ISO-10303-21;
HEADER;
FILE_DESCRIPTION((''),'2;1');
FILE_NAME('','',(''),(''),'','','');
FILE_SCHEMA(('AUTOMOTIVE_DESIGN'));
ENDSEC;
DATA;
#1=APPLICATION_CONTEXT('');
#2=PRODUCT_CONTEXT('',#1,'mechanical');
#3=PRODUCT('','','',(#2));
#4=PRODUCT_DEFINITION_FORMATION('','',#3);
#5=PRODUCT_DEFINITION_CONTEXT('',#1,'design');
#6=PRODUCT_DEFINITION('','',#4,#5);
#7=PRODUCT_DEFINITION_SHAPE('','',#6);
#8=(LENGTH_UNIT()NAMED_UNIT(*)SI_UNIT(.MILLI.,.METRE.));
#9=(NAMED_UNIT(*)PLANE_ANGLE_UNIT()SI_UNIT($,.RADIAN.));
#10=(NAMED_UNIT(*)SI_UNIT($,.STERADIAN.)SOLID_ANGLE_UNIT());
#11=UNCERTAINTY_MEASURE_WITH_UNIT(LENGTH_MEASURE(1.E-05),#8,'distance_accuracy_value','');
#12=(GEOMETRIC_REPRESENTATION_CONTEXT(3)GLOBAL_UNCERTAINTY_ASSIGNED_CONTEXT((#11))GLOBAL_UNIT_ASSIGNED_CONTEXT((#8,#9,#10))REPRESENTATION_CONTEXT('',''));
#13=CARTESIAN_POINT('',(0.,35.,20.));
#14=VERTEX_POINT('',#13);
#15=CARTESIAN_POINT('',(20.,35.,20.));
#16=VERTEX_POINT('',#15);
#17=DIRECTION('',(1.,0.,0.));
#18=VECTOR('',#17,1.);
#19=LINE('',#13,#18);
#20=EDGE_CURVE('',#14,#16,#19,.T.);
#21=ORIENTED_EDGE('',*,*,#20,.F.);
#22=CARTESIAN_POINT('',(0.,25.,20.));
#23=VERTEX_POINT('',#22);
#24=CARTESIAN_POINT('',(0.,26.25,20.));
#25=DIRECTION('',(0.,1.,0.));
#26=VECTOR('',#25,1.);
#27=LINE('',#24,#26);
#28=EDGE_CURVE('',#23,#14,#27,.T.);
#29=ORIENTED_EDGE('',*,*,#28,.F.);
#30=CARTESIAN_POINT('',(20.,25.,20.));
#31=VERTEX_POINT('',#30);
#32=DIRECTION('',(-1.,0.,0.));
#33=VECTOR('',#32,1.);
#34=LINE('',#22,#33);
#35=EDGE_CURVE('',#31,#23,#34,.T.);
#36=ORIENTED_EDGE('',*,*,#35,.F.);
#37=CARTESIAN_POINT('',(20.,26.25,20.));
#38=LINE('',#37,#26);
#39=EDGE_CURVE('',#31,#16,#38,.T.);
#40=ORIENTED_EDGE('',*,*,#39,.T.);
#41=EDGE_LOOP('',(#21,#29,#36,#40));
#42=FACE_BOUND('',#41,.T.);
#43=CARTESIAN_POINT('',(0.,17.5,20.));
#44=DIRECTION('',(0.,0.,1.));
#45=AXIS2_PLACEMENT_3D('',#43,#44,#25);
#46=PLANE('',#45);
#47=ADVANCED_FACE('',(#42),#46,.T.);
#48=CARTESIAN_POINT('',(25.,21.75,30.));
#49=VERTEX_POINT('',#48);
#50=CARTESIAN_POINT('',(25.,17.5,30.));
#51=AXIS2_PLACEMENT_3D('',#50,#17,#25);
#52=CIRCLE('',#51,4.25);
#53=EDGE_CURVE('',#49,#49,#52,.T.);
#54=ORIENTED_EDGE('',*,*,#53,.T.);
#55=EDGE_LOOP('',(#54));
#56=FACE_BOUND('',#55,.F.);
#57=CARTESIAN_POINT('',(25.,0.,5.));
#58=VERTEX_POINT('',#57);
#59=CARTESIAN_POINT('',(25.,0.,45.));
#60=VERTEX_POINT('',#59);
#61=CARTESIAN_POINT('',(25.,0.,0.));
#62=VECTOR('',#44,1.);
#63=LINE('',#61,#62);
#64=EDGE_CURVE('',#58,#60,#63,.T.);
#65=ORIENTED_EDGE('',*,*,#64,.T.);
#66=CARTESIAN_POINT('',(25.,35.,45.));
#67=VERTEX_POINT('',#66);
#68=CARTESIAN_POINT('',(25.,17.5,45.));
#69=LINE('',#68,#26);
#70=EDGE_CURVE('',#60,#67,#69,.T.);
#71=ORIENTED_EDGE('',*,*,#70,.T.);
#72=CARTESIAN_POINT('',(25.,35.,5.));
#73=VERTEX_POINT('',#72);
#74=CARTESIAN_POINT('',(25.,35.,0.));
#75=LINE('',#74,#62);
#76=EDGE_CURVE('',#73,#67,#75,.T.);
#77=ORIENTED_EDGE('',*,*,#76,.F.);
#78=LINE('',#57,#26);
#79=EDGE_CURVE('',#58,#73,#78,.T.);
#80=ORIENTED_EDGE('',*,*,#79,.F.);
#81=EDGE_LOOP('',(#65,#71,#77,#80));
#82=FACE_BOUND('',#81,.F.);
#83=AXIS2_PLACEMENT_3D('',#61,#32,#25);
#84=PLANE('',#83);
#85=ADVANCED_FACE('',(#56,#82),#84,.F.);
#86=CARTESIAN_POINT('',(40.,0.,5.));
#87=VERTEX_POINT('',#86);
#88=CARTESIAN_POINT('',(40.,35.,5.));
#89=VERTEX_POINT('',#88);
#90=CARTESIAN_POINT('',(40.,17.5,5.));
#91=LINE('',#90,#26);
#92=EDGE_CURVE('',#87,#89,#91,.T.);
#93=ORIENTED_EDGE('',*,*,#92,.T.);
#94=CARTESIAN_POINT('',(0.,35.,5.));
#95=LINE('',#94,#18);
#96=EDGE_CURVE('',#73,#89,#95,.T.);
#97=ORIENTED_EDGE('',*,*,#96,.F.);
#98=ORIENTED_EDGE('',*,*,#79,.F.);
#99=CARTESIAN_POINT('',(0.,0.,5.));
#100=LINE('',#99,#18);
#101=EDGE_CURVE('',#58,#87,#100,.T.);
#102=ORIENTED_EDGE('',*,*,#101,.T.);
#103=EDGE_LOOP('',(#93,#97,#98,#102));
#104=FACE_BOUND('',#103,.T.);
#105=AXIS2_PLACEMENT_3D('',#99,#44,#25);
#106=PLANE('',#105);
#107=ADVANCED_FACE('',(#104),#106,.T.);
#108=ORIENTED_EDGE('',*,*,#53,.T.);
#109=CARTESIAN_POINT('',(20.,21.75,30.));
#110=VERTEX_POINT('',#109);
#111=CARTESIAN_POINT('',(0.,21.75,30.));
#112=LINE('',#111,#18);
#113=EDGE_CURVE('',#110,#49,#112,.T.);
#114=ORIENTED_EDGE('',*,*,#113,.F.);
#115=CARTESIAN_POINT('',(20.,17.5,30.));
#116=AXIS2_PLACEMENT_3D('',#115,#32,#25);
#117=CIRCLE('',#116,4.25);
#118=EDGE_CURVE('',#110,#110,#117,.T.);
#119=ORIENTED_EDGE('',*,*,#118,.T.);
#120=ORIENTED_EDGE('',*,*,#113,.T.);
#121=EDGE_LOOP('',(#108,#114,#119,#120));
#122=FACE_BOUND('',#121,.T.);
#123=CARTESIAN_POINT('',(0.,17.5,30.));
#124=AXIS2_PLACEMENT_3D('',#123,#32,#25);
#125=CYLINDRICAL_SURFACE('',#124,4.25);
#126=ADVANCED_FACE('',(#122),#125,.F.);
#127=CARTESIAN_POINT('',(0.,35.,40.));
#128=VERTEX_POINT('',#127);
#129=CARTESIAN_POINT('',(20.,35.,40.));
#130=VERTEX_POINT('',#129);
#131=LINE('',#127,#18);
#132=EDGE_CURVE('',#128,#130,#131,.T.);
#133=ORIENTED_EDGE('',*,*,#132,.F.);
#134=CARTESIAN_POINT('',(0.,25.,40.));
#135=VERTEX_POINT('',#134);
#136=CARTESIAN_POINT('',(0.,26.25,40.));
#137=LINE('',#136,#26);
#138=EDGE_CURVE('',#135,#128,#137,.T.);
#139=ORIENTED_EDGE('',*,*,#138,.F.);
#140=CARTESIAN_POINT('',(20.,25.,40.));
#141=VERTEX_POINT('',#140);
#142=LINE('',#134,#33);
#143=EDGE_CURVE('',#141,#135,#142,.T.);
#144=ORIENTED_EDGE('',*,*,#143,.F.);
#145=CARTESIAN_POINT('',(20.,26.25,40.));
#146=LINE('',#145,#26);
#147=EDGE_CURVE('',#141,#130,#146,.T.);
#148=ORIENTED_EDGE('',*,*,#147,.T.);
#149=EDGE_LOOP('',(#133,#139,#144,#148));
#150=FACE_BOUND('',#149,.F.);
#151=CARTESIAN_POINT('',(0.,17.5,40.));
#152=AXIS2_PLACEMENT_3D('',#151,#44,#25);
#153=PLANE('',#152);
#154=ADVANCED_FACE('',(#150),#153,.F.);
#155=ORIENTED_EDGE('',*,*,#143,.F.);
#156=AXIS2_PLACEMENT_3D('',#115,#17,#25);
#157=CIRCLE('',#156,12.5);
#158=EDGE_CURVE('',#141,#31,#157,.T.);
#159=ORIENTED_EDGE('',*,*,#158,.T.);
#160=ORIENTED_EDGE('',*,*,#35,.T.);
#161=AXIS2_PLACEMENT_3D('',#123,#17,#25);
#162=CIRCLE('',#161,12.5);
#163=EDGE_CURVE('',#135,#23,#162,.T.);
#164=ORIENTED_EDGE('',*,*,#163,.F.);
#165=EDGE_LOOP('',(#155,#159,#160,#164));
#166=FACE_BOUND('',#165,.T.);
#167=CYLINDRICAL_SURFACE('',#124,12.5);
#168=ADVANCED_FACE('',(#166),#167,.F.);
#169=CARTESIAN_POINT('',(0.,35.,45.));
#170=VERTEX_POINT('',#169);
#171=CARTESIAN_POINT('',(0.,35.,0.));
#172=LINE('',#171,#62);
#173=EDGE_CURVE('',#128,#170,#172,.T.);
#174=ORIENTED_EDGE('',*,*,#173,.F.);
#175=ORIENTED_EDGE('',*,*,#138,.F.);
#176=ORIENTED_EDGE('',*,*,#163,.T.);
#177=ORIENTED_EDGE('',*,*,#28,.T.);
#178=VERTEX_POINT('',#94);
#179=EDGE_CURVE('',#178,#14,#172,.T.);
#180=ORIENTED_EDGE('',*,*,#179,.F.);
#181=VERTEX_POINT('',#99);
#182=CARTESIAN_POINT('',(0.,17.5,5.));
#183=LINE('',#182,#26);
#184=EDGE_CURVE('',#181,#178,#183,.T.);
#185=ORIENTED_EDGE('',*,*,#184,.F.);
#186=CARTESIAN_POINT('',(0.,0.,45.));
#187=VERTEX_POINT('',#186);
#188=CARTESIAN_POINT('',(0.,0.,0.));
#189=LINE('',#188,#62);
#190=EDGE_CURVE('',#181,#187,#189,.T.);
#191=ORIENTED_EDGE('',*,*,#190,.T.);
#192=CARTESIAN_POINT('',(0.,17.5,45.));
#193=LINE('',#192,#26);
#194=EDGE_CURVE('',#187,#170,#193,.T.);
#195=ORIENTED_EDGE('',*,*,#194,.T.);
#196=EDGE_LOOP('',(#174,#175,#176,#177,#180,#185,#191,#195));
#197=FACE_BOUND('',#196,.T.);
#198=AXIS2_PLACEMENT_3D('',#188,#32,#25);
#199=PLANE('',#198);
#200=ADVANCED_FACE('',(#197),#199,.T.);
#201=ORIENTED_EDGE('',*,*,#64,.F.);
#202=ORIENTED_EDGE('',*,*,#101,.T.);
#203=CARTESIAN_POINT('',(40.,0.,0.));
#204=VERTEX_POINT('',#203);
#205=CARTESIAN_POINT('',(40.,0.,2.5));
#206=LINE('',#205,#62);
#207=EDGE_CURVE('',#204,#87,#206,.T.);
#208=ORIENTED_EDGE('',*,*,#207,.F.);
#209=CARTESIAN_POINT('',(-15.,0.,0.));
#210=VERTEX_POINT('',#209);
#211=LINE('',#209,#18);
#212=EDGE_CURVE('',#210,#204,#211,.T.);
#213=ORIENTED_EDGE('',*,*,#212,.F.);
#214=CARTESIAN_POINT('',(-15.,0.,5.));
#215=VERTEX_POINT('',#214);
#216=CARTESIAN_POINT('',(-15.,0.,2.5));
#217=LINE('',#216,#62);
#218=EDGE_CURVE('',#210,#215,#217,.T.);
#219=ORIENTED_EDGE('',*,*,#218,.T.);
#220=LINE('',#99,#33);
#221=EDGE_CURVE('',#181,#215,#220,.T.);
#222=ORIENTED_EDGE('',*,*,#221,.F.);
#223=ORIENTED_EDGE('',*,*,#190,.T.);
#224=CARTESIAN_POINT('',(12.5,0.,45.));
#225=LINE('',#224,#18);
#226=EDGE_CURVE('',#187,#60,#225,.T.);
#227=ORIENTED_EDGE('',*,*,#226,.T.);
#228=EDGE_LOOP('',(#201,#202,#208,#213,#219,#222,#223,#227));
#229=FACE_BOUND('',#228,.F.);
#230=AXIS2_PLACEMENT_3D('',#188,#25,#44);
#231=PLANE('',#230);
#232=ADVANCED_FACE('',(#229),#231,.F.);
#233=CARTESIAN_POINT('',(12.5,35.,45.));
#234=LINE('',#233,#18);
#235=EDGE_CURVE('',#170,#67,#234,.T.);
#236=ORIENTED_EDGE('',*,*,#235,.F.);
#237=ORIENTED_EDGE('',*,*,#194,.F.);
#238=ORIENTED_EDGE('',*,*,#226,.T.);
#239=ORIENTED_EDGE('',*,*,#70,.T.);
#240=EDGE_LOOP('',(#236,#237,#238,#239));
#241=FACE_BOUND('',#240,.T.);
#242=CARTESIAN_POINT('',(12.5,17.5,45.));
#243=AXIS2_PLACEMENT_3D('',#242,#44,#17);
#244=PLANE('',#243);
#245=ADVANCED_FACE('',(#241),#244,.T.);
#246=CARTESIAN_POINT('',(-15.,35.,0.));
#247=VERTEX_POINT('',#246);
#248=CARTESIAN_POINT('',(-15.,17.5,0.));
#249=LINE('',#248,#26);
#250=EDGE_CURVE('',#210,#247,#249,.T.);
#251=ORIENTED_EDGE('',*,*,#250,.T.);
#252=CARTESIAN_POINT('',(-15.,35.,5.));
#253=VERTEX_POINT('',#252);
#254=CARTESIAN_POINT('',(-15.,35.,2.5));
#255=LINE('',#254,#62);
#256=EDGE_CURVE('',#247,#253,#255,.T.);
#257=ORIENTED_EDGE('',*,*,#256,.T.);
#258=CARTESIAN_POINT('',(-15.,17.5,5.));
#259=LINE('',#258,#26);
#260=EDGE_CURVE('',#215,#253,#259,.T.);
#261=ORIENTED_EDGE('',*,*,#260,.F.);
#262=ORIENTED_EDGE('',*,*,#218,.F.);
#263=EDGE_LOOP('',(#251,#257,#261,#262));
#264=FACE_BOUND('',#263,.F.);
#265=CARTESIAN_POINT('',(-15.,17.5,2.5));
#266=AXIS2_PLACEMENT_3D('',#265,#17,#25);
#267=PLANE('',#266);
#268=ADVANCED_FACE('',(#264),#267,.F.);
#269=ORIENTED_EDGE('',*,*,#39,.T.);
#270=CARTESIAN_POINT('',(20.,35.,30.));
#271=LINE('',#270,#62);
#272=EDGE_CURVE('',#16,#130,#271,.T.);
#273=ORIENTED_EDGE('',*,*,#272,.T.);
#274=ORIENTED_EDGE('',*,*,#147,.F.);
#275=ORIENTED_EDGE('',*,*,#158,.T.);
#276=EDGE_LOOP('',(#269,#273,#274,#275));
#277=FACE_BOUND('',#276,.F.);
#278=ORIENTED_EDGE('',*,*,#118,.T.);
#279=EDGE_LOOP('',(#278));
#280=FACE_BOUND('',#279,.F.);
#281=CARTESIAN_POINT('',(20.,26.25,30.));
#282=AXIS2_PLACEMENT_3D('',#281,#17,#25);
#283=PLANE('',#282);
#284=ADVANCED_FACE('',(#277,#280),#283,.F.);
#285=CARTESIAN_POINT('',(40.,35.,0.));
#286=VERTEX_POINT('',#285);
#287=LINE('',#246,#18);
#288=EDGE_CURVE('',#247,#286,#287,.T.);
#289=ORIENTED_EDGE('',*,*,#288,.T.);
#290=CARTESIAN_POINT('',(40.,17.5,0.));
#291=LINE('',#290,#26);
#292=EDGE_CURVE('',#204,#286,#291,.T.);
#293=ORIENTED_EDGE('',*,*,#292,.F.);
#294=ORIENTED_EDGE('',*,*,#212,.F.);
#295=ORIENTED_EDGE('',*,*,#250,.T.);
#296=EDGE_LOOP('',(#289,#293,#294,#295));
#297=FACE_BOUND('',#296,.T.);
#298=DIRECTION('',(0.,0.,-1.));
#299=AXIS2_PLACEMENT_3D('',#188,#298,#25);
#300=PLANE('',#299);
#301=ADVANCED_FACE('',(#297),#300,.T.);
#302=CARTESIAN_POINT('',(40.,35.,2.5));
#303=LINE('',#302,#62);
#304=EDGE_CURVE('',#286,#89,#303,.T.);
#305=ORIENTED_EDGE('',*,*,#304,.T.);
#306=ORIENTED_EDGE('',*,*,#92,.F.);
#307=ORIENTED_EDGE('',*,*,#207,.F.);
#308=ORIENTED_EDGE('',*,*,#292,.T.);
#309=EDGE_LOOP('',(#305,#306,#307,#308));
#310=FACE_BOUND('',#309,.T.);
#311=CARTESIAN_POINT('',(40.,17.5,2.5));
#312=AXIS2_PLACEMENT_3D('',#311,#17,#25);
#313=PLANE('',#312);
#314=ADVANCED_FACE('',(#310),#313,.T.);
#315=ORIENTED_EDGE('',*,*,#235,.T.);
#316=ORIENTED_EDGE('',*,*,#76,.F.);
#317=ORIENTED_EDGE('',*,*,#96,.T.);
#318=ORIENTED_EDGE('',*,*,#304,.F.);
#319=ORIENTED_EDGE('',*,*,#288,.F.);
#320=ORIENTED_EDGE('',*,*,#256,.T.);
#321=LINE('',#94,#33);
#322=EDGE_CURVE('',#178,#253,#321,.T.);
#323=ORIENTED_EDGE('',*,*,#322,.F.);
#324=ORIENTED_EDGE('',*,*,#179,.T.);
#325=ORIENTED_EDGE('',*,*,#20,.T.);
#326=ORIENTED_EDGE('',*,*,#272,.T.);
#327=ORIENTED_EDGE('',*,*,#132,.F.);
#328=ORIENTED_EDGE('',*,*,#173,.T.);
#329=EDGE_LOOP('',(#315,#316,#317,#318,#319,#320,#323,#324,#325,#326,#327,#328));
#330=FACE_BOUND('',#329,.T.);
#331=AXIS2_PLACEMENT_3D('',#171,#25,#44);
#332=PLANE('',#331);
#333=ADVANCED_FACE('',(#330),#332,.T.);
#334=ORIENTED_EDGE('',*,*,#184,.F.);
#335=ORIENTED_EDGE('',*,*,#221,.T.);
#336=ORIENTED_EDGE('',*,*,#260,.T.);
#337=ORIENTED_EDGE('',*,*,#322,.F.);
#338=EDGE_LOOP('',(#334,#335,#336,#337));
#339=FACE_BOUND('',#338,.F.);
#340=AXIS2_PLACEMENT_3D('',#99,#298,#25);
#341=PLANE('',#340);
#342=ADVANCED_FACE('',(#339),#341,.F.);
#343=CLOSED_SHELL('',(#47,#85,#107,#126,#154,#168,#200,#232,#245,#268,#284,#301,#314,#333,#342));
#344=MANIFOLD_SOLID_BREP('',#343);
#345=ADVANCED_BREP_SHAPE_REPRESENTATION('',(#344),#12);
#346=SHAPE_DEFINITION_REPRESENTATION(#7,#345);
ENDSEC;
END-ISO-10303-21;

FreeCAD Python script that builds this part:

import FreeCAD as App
import Part
import Sketcher

V = App.Vector


def add_polygon(sketch, points):
    """Adds a closed chain of lines whose ends are joined by coincident constraints."""
    first, n = sketch.GeometryCount, len(points)
    for a, b in zip(points, points[1:] + points[:1]):
        sketch.addGeometry(Part.LineSegment(App.Vector(*a, 0), App.Vector(*b, 0)), False)
    for i in range(n):
        sketch.addConstraint(Sketcher.Constraint("Coincident", first + i, 2, first + (i + 1) % n, 1))

doc = App.newDocument("Part")
body = doc.addObject("PartDesign::Body", "Body")

# Sketch on XY plane
sketch1 = body.newObject("Sketcher::SketchObject", "Sketch")
sketch1.AttachmentSupport = (doc.getObject("XY_Plane"), [""])
sketch1.MapMode = "FlatFace"
add_polygon(sketch1, [(0, 35), (0, 0), (25, 0), (25, 35)])  # lines 0-3
sketch1.addConstraint([
    Sketcher.Constraint("Vertical", 0),
    Sketcher.Constraint("Horizontal", 1),
    Sketcher.Constraint("Vertical", 2),
    Sketcher.Constraint("Horizontal", 3),
    Sketcher.Constraint("Coincident", 0, 2, -1, 1),
    Sketcher.Constraint("DistanceX", 1, 1, 1, 2, 25.0),
    Sketcher.Constraint("DistanceY", 0, 2, 0, 1, 35.0),
])
pad1 = body.newObject("PartDesign::Pad", "Pad")
pad1.Profile = sketch1
pad1.Length = 45

# Sketch on YZ plane
sketch2 = body.newObject("Sketcher::SketchObject", "Sketch001")
sketch2.AttachmentSupport = (doc.getObject("YZ_Plane"), [""])
sketch2.MapMode = "FlatFace"
sketch2.addGeometry(Part.Circle(V(17.5, 30, 0), V(0, 0, 1), 12.5), False)
sketch2.addConstraint([
    Sketcher.Constraint("Diameter", 0, 25.0),
    Sketcher.Constraint("DistanceY", -1, 1, 0, 3, 30.0),
    Sketcher.Constraint("DistanceX", -1, 1, 0, 3, 17.5),
])
pocket1 = body.newObject("PartDesign::Pocket", "Pocket")
pocket1.Profile = sketch2
pocket1.Length = 20
pocket1.Reversed = True

# Sketch on YZ plane
sketch3 = body.newObject("Sketcher::SketchObject", "Sketch002")
sketch3.AttachmentSupport = (doc.getObject("YZ_Plane"), [""])
sketch3.MapMode = "FlatFace"
sketch3.addGeometry(Part.Circle(V(17.5, 30, 0), V(0, 0, 1), 4.25), False)
sketch3.addConstraint([
    Sketcher.Constraint("Diameter", 0, 8.5),
    Sketcher.Constraint("DistanceY", -1, 1, 0, 3, 30.0),
    Sketcher.Constraint("DistanceX", -1, 1, 0, 3, 17.5),
])
pocket2 = body.newObject("PartDesign::Pocket", "Pocket001")
pocket2.Profile = sketch3
pocket2.Length = 25
pocket2.Reversed = True

# Sketch on YZ plane
sketch4 = body.newObject("Sketcher::SketchObject", "Sketch003")
sketch4.AttachmentSupport = (doc.getObject("YZ_Plane"), [""])
sketch4.MapMode = "FlatFace"
add_polygon(sketch4, [(0, 5), (0, 0), (35, 0), (35, 5)])  # lines 0-3
sketch4.addConstraint([
    Sketcher.Constraint("Vertical", 0),
    Sketcher.Constraint("Horizontal", 1),
    Sketcher.Constraint("Vertical", 2),
    Sketcher.Constraint("Horizontal", 3),
    Sketcher.Constraint("Coincident", 0, 2, -1, 1),
    Sketcher.Constraint("DistanceX", 1, 1, 1, 2, 35.0),
    Sketcher.Constraint("DistanceY", 0, 2, 0, 1, 5.0),
])
pad2 = body.newObject("PartDesign::Pad", "Pad001")
pad2.Profile = sketch4
pad2.Length = 15
pad2.Reversed = True

# Sketch on YZ plane
sketch5 = body.newObject("Sketcher::SketchObject", "Sketch004")
sketch5.AttachmentSupport = (doc.getObject("YZ_Plane"), [""])
sketch5.MapMode = "FlatFace"
add_polygon(sketch5, [(0, 5), (0, 0), (35, 0), (35, 5)])  # lines 0-3
sketch5.addConstraint([
    Sketcher.Constraint("Vertical", 0),
    Sketcher.Constraint("Horizontal", 1),
    Sketcher.Constraint("Vertical", 2),
    Sketcher.Constraint("Horizontal", 3),
    Sketcher.Constraint("Coincident", 0, 2, -1, 1),
    Sketcher.Constraint("DistanceX", 1, 1, 1, 2, 35.0),
    Sketcher.Constraint("DistanceY", 0, 2, 0, 1, 5.0),
])
pad3 = body.newObject("PartDesign::Pad", "Pad002")
pad3.Profile = sketch5
pad3.Length = 40

# Sketch on YZ plane
sketch6 = body.newObject("Sketcher::SketchObject", "Sketch005")
sketch6.AttachmentSupport = (doc.getObject("YZ_Plane"), [""])
sketch6.MapMode = "FlatFace"
add_polygon(sketch6, [(17.5, 40), (17.5, 20), (35, 20), (35, 40)])  # lines 0-3
sketch6.addConstraint([
    Sketcher.Constraint("Vertical", 0),
    Sketcher.Constraint("Horizontal", 1),
    Sketcher.Constraint("Vertical", 2),
    Sketcher.Constraint("Horizontal", 3),
    Sketcher.Constraint("DistanceY", 0, 2, 0, 1, 20.0),
    Sketcher.Constraint("DistanceX", 1, 1, 1, 2, 17.5),
    Sketcher.Constraint("DistanceY", -1, 1, 0, 2, 20.0),
    Sketcher.Constraint("DistanceX", -1, 1, 1, 2, 35.0),
])
pocket3 = body.newObject("PartDesign::Pocket", "Pocket002")
pocket3.Profile = sketch6
pocket3.Length = 20
pocket3.Reversed = True

doc.recompute()
